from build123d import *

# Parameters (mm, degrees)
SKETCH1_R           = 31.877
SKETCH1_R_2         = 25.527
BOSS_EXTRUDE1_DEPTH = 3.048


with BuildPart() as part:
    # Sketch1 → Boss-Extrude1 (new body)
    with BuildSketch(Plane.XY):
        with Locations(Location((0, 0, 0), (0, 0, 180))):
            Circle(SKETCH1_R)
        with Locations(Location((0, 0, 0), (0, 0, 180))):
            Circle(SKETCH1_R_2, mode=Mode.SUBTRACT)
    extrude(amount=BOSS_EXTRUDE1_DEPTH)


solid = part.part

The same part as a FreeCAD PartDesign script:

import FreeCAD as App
import Part
import Sketcher
Q = App.Units.Quantity

doc = App.newDocument("Part")
body = doc.addObject("PartDesign::Body", "Body")

sketch1 = body.newObject("Sketcher::SketchObject", "Sketch")
sketch1.AttachmentSupport = (doc.getObject("XY_Plane"), [""])
sketch1.MapMode = "FlatFace"
sketch1.addGeometry([
    Part.Circle(App.Vector(0, 0, 0), App.Vector(0, 0, 1), 31.877),
    Part.Circle(App.Vector(0, 0, 0), App.Vector(0, 0, 1), 25.527),
], False)
sketch1.addConstraint([
    Sketcher.Constraint("Coincident", 0, 3, -1, 1),
    Sketcher.Constraint("Coincident", 1, 3, -1, 1),
    Sketcher.Constraint("Diameter", 0, Q("2.51 in")),
    Sketcher.Constraint("Diameter", 1, Q("2.01 in")),
])
pad1 = body.newObject("PartDesign::Pad", "Pad")
pad1.Profile = sketch1
pad1.Length = Q("0.12 in")

doc.recompute()
